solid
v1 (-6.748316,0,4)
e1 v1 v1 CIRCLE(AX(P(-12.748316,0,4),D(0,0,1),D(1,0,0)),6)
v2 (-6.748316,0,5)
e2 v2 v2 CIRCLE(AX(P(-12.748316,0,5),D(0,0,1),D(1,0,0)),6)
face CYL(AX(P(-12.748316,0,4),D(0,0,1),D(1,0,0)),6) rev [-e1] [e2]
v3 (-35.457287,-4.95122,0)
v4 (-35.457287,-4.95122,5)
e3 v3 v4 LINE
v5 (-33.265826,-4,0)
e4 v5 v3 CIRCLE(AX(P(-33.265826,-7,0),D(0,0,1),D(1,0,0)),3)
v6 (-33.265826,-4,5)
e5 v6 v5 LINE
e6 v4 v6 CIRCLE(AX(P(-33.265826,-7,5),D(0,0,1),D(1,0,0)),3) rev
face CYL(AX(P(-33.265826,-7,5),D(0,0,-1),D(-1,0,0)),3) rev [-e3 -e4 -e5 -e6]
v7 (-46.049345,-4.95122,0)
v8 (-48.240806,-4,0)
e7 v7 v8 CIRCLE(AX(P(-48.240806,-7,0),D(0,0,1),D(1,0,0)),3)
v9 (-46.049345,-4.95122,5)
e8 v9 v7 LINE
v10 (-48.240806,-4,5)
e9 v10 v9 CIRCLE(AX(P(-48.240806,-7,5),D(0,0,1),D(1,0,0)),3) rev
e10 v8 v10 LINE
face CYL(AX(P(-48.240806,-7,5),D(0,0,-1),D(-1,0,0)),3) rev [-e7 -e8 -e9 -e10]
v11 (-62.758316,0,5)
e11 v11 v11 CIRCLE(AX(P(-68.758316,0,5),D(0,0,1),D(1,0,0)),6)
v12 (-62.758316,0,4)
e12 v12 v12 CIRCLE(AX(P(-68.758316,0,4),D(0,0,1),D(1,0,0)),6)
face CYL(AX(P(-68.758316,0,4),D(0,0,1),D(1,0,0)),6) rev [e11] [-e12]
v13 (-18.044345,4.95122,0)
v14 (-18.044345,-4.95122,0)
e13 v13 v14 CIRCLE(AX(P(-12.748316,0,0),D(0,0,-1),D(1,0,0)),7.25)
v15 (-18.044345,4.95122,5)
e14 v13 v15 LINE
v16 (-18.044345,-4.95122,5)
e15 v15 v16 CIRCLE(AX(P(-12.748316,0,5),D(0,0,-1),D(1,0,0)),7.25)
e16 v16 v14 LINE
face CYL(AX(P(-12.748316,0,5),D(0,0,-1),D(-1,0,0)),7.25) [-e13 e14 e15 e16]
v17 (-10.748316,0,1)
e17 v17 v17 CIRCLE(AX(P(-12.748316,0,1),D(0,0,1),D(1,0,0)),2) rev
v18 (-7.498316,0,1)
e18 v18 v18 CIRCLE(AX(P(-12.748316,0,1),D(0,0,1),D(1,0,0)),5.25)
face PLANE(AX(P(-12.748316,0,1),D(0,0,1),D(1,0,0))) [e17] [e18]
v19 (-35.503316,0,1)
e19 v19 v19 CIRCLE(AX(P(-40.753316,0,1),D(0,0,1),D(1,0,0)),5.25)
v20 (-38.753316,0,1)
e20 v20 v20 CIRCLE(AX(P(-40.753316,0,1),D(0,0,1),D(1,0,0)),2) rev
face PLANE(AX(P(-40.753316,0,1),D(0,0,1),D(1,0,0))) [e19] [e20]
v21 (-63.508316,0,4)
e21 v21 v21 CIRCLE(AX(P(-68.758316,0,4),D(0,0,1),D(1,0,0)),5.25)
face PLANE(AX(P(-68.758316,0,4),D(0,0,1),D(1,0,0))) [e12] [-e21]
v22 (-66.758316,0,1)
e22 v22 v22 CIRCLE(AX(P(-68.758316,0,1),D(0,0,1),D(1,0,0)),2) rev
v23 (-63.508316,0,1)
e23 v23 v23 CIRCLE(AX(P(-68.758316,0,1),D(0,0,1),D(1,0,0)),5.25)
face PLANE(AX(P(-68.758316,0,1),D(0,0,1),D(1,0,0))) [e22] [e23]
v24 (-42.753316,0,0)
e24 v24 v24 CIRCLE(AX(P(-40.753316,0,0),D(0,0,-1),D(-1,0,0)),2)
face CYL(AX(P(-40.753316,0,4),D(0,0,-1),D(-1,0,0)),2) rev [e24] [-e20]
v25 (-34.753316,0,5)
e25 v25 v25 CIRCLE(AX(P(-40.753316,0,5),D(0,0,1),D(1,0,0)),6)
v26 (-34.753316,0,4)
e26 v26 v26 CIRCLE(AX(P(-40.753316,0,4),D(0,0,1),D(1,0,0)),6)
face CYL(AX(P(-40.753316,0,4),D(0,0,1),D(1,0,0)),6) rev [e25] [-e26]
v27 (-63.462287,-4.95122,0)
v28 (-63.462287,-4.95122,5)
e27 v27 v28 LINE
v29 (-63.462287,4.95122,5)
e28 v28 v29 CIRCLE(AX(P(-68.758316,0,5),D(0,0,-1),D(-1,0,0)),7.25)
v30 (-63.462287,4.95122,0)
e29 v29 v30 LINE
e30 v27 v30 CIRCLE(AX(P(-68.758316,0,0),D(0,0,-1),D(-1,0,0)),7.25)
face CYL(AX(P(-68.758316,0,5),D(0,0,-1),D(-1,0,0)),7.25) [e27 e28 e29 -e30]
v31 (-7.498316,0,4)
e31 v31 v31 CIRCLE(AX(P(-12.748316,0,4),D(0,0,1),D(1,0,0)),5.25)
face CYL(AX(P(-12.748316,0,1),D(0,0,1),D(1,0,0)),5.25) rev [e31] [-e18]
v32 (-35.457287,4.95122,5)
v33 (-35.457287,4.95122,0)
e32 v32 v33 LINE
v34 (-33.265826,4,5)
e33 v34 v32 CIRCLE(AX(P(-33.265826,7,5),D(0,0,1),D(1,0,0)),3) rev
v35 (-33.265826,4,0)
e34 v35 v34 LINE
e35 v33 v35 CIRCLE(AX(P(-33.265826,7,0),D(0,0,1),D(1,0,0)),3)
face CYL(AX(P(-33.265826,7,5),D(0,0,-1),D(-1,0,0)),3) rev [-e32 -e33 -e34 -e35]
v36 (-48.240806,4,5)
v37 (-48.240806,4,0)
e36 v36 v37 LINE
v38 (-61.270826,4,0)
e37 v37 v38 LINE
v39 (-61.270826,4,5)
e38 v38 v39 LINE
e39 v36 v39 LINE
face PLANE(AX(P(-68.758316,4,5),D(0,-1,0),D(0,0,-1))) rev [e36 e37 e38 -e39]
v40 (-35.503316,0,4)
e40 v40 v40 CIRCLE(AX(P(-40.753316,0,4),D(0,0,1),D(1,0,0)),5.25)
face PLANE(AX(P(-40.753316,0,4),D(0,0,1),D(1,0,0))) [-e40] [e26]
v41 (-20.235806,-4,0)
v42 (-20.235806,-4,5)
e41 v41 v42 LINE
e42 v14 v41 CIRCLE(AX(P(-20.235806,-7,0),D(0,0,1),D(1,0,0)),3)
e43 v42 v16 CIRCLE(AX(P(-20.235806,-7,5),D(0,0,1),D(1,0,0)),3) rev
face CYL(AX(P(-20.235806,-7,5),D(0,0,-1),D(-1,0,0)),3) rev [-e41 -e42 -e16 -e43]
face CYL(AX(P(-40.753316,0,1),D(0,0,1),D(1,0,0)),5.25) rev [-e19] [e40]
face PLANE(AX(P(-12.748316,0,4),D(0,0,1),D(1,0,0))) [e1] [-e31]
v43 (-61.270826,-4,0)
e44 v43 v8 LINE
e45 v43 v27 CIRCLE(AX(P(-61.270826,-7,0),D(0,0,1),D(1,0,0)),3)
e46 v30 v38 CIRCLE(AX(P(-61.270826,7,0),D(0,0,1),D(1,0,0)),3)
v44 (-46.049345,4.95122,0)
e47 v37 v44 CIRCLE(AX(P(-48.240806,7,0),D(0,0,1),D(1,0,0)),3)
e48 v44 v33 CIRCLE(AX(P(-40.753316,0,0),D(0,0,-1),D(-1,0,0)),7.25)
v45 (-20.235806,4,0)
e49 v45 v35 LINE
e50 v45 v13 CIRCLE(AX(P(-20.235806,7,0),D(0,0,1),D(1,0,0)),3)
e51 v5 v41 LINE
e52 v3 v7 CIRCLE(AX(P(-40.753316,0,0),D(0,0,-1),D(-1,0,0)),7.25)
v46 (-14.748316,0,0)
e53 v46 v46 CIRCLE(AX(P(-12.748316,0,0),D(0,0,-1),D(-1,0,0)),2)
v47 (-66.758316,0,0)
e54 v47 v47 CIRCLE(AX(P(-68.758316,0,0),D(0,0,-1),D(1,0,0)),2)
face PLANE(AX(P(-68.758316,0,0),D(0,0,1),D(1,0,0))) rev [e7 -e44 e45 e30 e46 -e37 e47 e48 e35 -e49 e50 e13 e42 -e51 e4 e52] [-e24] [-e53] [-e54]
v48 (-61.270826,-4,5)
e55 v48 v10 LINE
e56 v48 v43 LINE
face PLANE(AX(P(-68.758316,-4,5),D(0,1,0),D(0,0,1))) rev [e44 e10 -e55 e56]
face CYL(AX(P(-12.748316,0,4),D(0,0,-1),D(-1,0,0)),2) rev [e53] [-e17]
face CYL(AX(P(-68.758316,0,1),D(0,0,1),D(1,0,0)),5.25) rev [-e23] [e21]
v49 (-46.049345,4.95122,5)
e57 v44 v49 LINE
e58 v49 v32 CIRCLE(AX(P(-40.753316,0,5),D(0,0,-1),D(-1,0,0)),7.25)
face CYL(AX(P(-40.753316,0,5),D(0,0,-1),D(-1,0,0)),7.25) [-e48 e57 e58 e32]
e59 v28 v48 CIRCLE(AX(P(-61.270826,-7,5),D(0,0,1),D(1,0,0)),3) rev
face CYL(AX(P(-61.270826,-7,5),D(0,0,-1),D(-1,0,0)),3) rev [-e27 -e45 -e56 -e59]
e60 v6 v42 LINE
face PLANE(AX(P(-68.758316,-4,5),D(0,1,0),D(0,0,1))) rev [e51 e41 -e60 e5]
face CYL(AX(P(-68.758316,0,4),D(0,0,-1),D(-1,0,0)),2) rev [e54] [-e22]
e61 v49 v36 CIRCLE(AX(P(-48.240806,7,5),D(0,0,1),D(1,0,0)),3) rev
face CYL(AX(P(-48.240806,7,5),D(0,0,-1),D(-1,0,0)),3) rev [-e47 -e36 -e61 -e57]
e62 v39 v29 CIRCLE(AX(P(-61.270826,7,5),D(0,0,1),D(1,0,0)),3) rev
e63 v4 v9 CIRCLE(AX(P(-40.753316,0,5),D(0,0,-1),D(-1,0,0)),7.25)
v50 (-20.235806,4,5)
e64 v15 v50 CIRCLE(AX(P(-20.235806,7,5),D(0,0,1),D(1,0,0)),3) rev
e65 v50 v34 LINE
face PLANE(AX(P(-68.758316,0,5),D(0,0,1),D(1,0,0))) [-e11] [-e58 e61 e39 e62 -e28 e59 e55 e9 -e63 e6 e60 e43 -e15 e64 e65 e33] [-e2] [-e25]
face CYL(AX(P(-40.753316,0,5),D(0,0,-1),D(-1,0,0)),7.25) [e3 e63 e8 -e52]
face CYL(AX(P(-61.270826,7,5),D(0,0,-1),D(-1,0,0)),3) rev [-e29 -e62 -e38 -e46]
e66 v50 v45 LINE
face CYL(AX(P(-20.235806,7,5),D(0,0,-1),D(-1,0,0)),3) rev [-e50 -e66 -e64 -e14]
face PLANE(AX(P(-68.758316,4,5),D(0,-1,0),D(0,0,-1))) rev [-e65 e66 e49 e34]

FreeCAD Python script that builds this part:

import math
import FreeCAD as App
import Part
import Sketcher

V = App.Vector
Q = App.Units.Quantity


def edges_at(feature, points):
    """Names of the edges that pass closest to the given points."""
    edges = feature.Shape.Edges
    near = lambda p: min(range(len(edges)), key=lambda i: edges[i].distToShape(Part.Vertex(*p))[0])
    return sorted({f"Edge{near(p) + 1}" for p in points})

doc = App.newDocument("Part")
body = doc.addObject("PartDesign::Body", "Body")

# Sketch on XY plane
sketch1 = doc.addObject("Sketcher::SketchObject", "Sketch")
body.addObject(sketch1)
sketch1.AttachmentSupport = (doc.XY_Plane, [""])
sketch1.MapMode = "FlatFace"
sketch1.addGeometry(Part.LineSegment(V(-12.748316, 4, 0), V(-68.758316, 4, 0)), False)
sketch1.addGeometry(Part.ArcOfCircle(Part.Circle(V(-68.758316, 0, 0), V(0, 0, 1), 4), math.radians(90), math.radians(270)), False)
sketch1.addGeometry(Part.LineSegment(V(-68.758316, -4, 0), V(-12.748316, -4, 0)), False)
sketch1.addGeometry(Part.ArcOfCircle(Part.Circle(V(-12.748316, 0, 0), V(0, 0, 1), 4), math.radians(-90), math.radians(90)), False)
sketch1.addConstraint(Sketcher.Constraint("Tangent", 0, 2, 1, 1))
sketch1.addConstraint(Sketcher.Constraint("Tangent", 1, 2, 2, 1))
sketch1.addConstraint(Sketcher.Constraint("Tangent", 2, 2, 3, 1))
sketch1.addConstraint(Sketcher.Constraint("Tangent", 3, 2, 0, 1))
sketch1.addConstraint(Sketcher.Constraint("Horizontal", 0))
sketch1.addConstraint(Sketcher.Constraint("Horizontal", 2))
sketch1.addConstraint(Sketcher.Constraint("PointOnObject", 1, 3, -1))
sketch1.addConstraint(Sketcher.Constraint("Radius", 1, Q("4 mm")))
sketch1.addConstraint(Sketcher.Constraint("DistanceX", 0, 2, 0, 1, Q("56.01 mm")))
sketch1.addConstraint(Sketcher.Constraint("DistanceX", 1, 3, -1, 1, Q("68.758316 mm")))
pad1 = doc.addObject("PartDesign::Pad", "Pad")
body.addObject(pad1)
pad1.Profile = sketch1
pad1.Length = 5

# Sketch on XY plane
sketch2 = doc.addObject("Sketcher::SketchObject", "Sketch001")
body.addObject(sketch2)
sketch2.AttachmentSupport = (doc.XY_Plane, [""])
sketch2.MapMode = "FlatFace"
sketch2.addGeometry(Part.Circle(V(-40.753316, 0, 0), V(0, 0, 1), 7.25), False)
sketch2.addGeometry(Part.Circle(V(-68.758316, 0, 0), V(0, 0, 1), 7.25), False)
sketch2.addGeometry(Part.Circle(V(-12.748316, 0, 0), V(0, 0, 1), 7.25), False)
sketch2.addConstraint(Sketcher.Constraint("Equal", 0, 1))
sketch2.addConstraint(Sketcher.Constraint("Equal", 1, 2))
sketch2.addConstraint(Sketcher.Constraint("PointOnObject", 0, 3, -1))
sketch2.addConstraint(Sketcher.Constraint("PointOnObject", 1, 3, -1))
sketch2.addConstraint(Sketcher.Constraint("PointOnObject", 2, 3, -1))
sketch2.addConstraint(Sketcher.Constraint("Diameter", 0, Q("14.5 mm")))
sketch2.addConstraint(Sketcher.Constraint("DistanceX", 1, 3, 2, 3, Q("56.01 mm")))
sketch2.addConstraint(Sketcher.Constraint("DistanceX", 1, 3, 0, 3, Q("28.005 mm")))
sketch2.addConstraint(Sketcher.Constraint("DistanceX", 0, 3, -1, 1, Q("40.753316 mm")))
pad2 = doc.addObject("PartDesign::Pad", "Pad001")
body.addObject(pad2)
pad2.Profile = sketch2
pad2.Length = 5

# Sketch on XY plane
sketch3 = doc.addObject("Sketcher::SketchObject", "Sketch002")
body.addObject(sketch3)
sketch3.AttachmentSupport = (doc.XY_Plane, [""])
sketch3.MapMode = "FlatFace"
sketch3.AttachmentOffset = App.Placement(V(0, 0, 5), App.Rotation())
sketch3.addGeometry(Part.Circle(V(-68.758316, 0, 0), V(0, 0, 1), 6), False)
sketch3.addGeometry(Part.Circle(V(-40.753316, 0, 0), V(0, 0, 1), 6), False)
sketch3.addGeometry(Part.Circle(V(-12.748316, 0, 0), V(0, 0, 1), 6), False)
sketch3.addConstraint(Sketcher.Constraint("Equal", 0, 1))
sketch3.addConstraint(Sketcher.Constraint("Equal", 1, 2))
sketch3.addConstraint(Sketcher.Constraint("PointOnObject", 0, 3, -1))
sketch3.addConstraint(Sketcher.Constraint("PointOnObject", 1, 3, -1))
sketch3.addConstraint(Sketcher.Constraint("PointOnObject", 2, 3, -1))
sketch3.addConstraint(Sketcher.Constraint("Diameter", 0, Q("12 mm")))
sketch3.addConstraint(Sketcher.Constraint("DistanceX", 0, 3, 2, 3, Q("56.01 mm")))
sketch3.addConstraint(Sketcher.Constraint("DistanceX", 0, 3, 1, 3, Q("28.005 mm")))
sketch3.addConstraint(Sketcher.Constraint("DistanceX", 0, 3, -1, 1, Q("68.758316 mm")))
pocket1 = doc.addObject("PartDesign::Pocket", "Pocket")
body.addObject(pocket1)
pocket1.Profile = sketch3
pocket1.Length = 1

# Sketch on XY plane
sketch4 = doc.addObject("Sketcher::SketchObject", "Sketch003")
body.addObject(sketch4)
sketch4.AttachmentSupport = (doc.XY_Plane, [""])
sketch4.MapMode = "FlatFace"
sketch4.addGeometry(Part.Circle(V(-12.748316, 0, 0), V(0, 0, 1), 2), False)
sketch4.addGeometry(Part.Circle(V(-40.753316, 0, 0), V(0, 0, 1), 2), False)
sketch4.addGeometry(Part.Circle(V(-68.758316, 0, 0), V(0, 0, 1), 2), False)
sketch4.addConstraint(Sketcher.Constraint("Equal", 0, 1))
sketch4.addConstraint(Sketcher.Constraint("Equal", 1, 2))
sketch4.addConstraint(Sketcher.Constraint("PointOnObject", 0, 3, -1))
sketch4.addConstraint(Sketcher.Constraint("PointOnObject", 1, 3, -1))
sketch4.addConstraint(Sketcher.Constraint("PointOnObject", 2, 3, -1))
sketch4.addConstraint(Sketcher.Constraint("Diameter", 0, Q("4 mm")))
sketch4.addConstraint(Sketcher.Constraint("DistanceX", 2, 3, 0, 3, Q("56.01 mm")))
sketch4.addConstraint(Sketcher.Constraint("DistanceX", 1, 3, 0, 3, Q("28.005 mm")))
sketch4.addConstraint(Sketcher.Constraint("DistanceX", 0, 3, -1, 1, Q("12.748316 mm")))
pocket2 = doc.addObject("PartDesign::Pocket", "Pocket001")
body.addObject(pocket2)
pocket2.Profile = sketch4
pocket2.Length = 4
pocket2.Reversed = True
doc.recompute()

fillet = doc.addObject("PartDesign::Fillet", "Fillet")
body.addObject(fillet)
fillet.Base = (pocket2, edges_at(pocket2, [
    (-34.707, -4, 2.5),
    (-34.707, 4, 2.5),
    (-46.8, -4, 2.5),
    (-46.8, 4, 2.5),
    (-62.712, 4, 2.5),
    (-62.712, -4, 2.5),
    (-18.795, -4, 2.5),
    (-18.795, 4, 2.5),
]))
fillet.Radius = 3

# Sketch on XY plane
sketch5 = doc.addObject("Sketcher::SketchObject", "Sketch004")
body.addObject(sketch5)
sketch5.AttachmentSupport = (doc.XY_Plane, [""])
sketch5.MapMode = "FlatFace"
sketch5.AttachmentOffset = App.Placement(V(0, 0, 4), App.Rotation())
sketch5.addGeometry(Part.Circle(V(-68.758316, 0, 0), V(0, 0, 1), 5.25), False)
sketch5.addGeometry(Part.Circle(V(-40.753316, 0, 0), V(0, 0, 1), 5.25), False)
sketch5.addGeometry(Part.Circle(V(-12.748316, 0, 0), V(0, 0, 1), 5.25), False)
sketch5.addConstraint(Sketcher.Constraint("Equal", 0, 1))
sketch5.addConstraint(Sketcher.Constraint("Equal", 1, 2))
sketch5.addConstraint(Sketcher.Constraint("PointOnObject", 0, 3, -1))
sketch5.addConstraint(Sketcher.Constraint("PointOnObject", 1, 3, -1))
sketch5.addConstraint(Sketcher.Constraint("PointOnObject", 2, 3, -1))
sketch5.addConstraint(Sketcher.Constraint("Diameter", 0, Q("10.5 mm")))
sketch5.addConstraint(Sketcher.Constraint("DistanceX", 0, 3, 2, 3, Q("56.01 mm")))
sketch5.addConstraint(Sketcher.Constraint("DistanceX", 0, 3, 1, 3, Q("28.005 mm")))
sketch5.addConstraint(Sketcher.Constraint("DistanceX", 0, 3, -1, 1, Q("68.758316 mm")))
pocket3 = doc.addObject("PartDesign::Pocket", "Pocket002")
body.addObject(pocket3)
pocket3.Profile = sketch5
pocket3.Length = 3

doc.recompute()
